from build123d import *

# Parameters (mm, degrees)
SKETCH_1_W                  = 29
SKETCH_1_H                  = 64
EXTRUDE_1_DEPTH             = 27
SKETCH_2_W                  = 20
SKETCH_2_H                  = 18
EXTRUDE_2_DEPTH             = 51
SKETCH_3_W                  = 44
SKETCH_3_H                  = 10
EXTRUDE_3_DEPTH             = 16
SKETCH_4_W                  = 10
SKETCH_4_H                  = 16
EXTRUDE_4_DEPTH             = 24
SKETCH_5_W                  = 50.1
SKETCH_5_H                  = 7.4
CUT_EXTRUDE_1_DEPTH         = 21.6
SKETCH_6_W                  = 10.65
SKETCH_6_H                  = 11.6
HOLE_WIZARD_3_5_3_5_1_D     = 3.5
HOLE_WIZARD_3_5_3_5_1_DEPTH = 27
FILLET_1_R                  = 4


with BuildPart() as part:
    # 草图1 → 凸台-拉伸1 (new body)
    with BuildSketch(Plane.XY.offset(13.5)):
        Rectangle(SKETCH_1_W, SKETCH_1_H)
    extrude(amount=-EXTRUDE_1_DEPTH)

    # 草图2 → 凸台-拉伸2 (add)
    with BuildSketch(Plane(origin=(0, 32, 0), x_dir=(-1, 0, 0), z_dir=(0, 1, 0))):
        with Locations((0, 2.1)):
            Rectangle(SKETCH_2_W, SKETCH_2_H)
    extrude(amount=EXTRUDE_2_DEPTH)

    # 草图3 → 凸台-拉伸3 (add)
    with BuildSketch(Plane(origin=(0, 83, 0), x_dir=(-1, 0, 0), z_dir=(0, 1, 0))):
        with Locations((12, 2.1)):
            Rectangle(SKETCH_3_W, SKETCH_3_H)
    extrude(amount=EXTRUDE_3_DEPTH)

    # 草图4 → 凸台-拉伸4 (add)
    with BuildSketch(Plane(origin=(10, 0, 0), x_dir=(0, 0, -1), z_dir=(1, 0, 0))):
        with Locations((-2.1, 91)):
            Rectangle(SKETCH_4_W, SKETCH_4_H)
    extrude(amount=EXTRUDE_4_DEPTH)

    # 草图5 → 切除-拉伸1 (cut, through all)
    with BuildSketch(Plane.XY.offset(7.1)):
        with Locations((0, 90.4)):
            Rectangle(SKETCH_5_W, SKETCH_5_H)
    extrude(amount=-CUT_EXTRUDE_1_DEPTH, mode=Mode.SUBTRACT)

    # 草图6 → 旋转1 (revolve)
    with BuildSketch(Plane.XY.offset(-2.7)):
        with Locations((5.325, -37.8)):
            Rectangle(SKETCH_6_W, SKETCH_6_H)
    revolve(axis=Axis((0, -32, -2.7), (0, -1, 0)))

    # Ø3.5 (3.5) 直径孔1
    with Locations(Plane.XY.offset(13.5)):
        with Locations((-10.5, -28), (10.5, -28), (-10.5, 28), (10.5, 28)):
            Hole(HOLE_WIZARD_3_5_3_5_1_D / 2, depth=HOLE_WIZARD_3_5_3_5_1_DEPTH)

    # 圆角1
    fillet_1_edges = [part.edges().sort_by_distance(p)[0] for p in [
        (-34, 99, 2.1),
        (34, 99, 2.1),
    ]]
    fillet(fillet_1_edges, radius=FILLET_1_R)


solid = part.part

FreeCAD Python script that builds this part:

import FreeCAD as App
import Part
import Sketcher
from FreeCAD import Vector


def edges_at(feature, points):
    """Names of the edges that pass closest to the given points."""
    edges = feature.Shape.Edges
    near = lambda p: min(range(len(edges)), key=lambda i: edges[i].distToShape(Part.Vertex(*p))[0])
    return sorted({f"Edge{near(p) + 1}" for p in points})


def add_polygon(sketch, points):
    """Adds a closed chain of lines whose ends are joined by coincident constraints."""
    first, n = sketch.GeometryCount, len(points)
    for a, b in zip(points, points[1:] + points[:1]):
        sketch.addGeometry(Part.LineSegment(App.Vector(*a, 0), App.Vector(*b, 0)), False)
    for i in range(n):
        sketch.addConstraint(Sketcher.Constraint("Coincident", first + i, 2, first + (i + 1) % n, 1))

doc = App.newDocument("Part")
body = doc.addObject("PartDesign::Body", "Body")

sketch1 = body.newObject("Sketcher::SketchObject", "Sketch")
sketch1.AttachmentSupport = (doc.getObject("XY_Plane"), [""])
sketch1.MapMode = "FlatFace"
sketch1.AttachmentOffset = App.Placement(Vector(0, 0, 13.5), App.Rotation())
add_polygon(sketch1, [(-14, 32), (-14, -32), (14, -32), (14, 32)])
sketch1.addConstraint([
    Sketcher.Constraint("Vertical", 0),
    Sketcher.Constraint("Horizontal", 1),
    Sketcher.Constraint("Vertical", 2),
    Sketcher.Constraint("Horizontal", 3),
    Sketcher.Constraint("Symmetric", 0, 2, 2, 2, -1, 1),
    Sketcher.Constraint("DistanceX", 1, 1, 1, 2, 29.0),
    Sketcher.Constraint("DistanceY", 0, 2, 0, 1, 64.0),
])
pad1 = body.newObject("PartDesign::Pad", "Pad")
pad1.Profile = sketch1
pad1.Length = 27
pad1.Reversed = True

sketch2 = body.newObject("Sketcher::SketchObject", "Sketch001")
sketch2.AttachmentSupport = (doc.getObject("XZ_Plane"), [""])
sketch2.MapMode = "FlatFace"
sketch2.AttachmentOffset = App.Placement(Vector(0, 0, -32), App.Rotation())
add_polygon(sketch2, [(10, 11), (10, -7), (-10, -7), (-10, 11)])
sketch2.addConstraint([
    Sketcher.Constraint("Vertical", 0),
    Sketcher.Constraint("Horizontal", 1),
    Sketcher.Constraint("Vertical", 2),
    Sketcher.Constraint("Horizontal", 3),
    Sketcher.Constraint("DistanceX", 1, 2, 1, 1, 20.0),
    Sketcher.Constraint("DistanceY", 0, 2, 0, 1, 18.0),
    Sketcher.Constraint("DistanceX", -1, 1, 0, 2, 10.0),
    Sketcher.Constraint("DistanceY", 0, 2, -1, 1, 6.9),
])
pad2 = body.newObject("PartDesign::Pad", "Pad001")
pad2.Profile = sketch2
pad2.Length = 51
pad2.Reversed = True

sketch3 = body.newObject("Sketcher::SketchObject", "Sketch002")
sketch3.AttachmentSupport = (doc.getObject("XZ_Plane"), [""])
sketch3.MapMode = "FlatFace"
sketch3.AttachmentOffset = App.Placement(Vector(0, 0, -83), App.Rotation())
add_polygon(sketch3, [(10, 7), (10, -3), (-34, -3), (-34, 7)])
sketch3.addConstraint([
    Sketcher.Constraint("Vertical", 0),
    Sketcher.Constraint("Horizontal", 1),
    Sketcher.Constraint("Vertical", 2),
    Sketcher.Constraint("Horizontal", 3),
    Sketcher.Constraint("DistanceX", 1, 2, 1, 1, 44.0),
    Sketcher.Constraint("DistanceY", 0, 2, 0, 1, 10.0),
    Sketcher.Constraint("DistanceX", -1, 1, 0, 2, 10.0),
    Sketcher.Constraint("DistanceY", 0, 2, -1, 1, 2.9),
])
pad3 = body.newObject("PartDesign::Pad", "Pad002")
pad3.Profile = sketch3
pad3.Length = 16
pad3.Reversed = True

sketch4 = body.newObject("Sketcher::SketchObject", "Sketch003")
sketch4.AttachmentSupport = (doc.getObject("YZ_Plane"), [""])
sketch4.MapMode = "FlatFace"
sketch4.AttachmentOffset = App.Placement(Vector(0, 0, 10), App.Rotation())
add_polygon(sketch4, [(99, 7), (83, 7), (83, -3), (99, -3)])
sketch4.addConstraint([
    Sketcher.Constraint("Horizontal", 0),
    Sketcher.Constraint("Vertical", 1),
    Sketcher.Constraint("Horizontal", 2),
    Sketcher.Constraint("Vertical", 3),
    Sketcher.Constraint("DistanceX", 0, 2, 0, 1, 16.0),
    Sketcher.Constraint("DistanceY", 1, 2, 1, 1, 10.0),
    Sketcher.Constraint("DistanceX", -1, 1, 0, 2, 83.0),
    Sketcher.Constraint("DistanceY", -1, 1, 0, 2, 7.1),
])
pad4 = body.newObject("PartDesign::Pad", "Pad003")
pad4.Profile = sketch4
pad4.Length = 24

sketch5 = body.newObject("Sketcher::SketchObject", "Sketch004")
sketch5.AttachmentSupport = (doc.getObject("XY_Plane"), [""])
sketch5.MapMode = "FlatFace"
sketch5.AttachmentOffset = App.Placement(Vector(0, 0, 7.1), App.Rotation())
add_polygon(sketch5, [(-25, 94), (-25, 87), (25, 87), (25, 94)])
sketch5.addConstraint([
    Sketcher.Constraint("Vertical", 0),
    Sketcher.Constraint("Horizontal", 1),
    Sketcher.Constraint("Vertical", 2),
    Sketcher.Constraint("Horizontal", 3),
    Sketcher.Constraint("DistanceX", 1, 1, 1, 2, 50.1),
    Sketcher.Constraint("DistanceY", 0, 2, 0, 1, 7.4),
    Sketcher.Constraint("DistanceY", -1, 1, 0, 2, 86.7),
    Sketcher.Constraint("DistanceX", 0, 2, -1, 1, 25.05),
])
pocket1 = body.newObject("PartDesign::Pocket", "Pocket")
pocket1.Profile = sketch5
pocket1.Type = "ThroughAll"

sketch6 = body.newObject("Sketcher::SketchObject", "Sketch005")
sketch6.AttachmentSupport = (doc.getObject("XY_Plane"), [""])
sketch6.MapMode = "FlatFace"
sketch6.AttachmentOffset = App.Placement(Vector(0, 0, -2.7), App.Rotation())
add_polygon(sketch6, [(0, -32), (0, -44), (11, -44), (11, -32)])
sketch6.addConstraint([
    Sketcher.Constraint("Vertical", 0),
    Sketcher.Constraint("Horizontal", 1),
    Sketcher.Constraint("Vertical", 2),
    Sketcher.Constraint("Horizontal", 3),
    Sketcher.Constraint("PointOnObject", 0, 2, -2),
    Sketcher.Constraint("DistanceY", 0, 2, 0, 1, 11.6),
    Sketcher.Constraint("DistanceY", 2, 2, -1, 1, 32.0),
    Sketcher.Constraint("DistanceX", 1, 1, 1, 2, 10.65),
])
revolution = body.newObject("PartDesign::Revolution", "Revolution")
revolution.Profile = sketch6
revolution.ReferenceAxis = (sketch6, ["V_Axis"])
revolution.Angle = 360

sketch7 = body.newObject("Sketcher::SketchObject", "Sketch006")
sketch7.AttachmentSupport = (doc.getObject("XY_Plane"), [""])
sketch7.MapMode = "FlatFace"
sketch7.AttachmentOffset = App.Placement(Vector(0, 0, 13.5), App.Rotation())
sketch7.addGeometry([
    Part.Circle(Vector(-10.5, -28, 0), Vector(0, 0, 1), 1.8),
    Part.Circle(Vector(10.5, -28, 0), Vector(0, 0, 1), 1.8),
    Part.Circle(Vector(-10.5, 28, 0), Vector(0, 0, 1), 1.8),
    Part.Circle(Vector(10.5, 28, 0), Vector(0, 0, 1), 1.8),
], False)
sketch7.addConstraint([
    Sketcher.Constraint("Equal", 0, 1),
    Sketcher.Constraint("Equal", 1, 2),
    Sketcher.Constraint("Equal", 2, 3),
    Sketcher.Constraint("Symmetric", 1, 3, 2, 3, -1, 1),
    Sketcher.Constraint("Symmetric", 0, 3, 3, 3, -1, 1),
    Sketcher.Constraint("Symmetric", 0, 3, 1, 3, -2),
    Sketcher.Constraint("Diameter", 0, 3.5),
    Sketcher.Constraint("DistanceY", 0, 3, -1, 1, 28.0),
    Sketcher.Constraint("DistanceX", 0, 3, 1, 3, 21.0),
])
doc.recompute()
hole = body.newObject("PartDesign::Hole", "Hole")
hole.Profile = sketch7
hole.ThreadType = "None"
hole.Diameter = 3.5
hole.DepthType = "Dimension"
hole.Depth = 27
hole.DrillPoint = "Flat"
doc.recompute()

fillet = body.newObject("PartDesign::Fillet", "Fillet")
fillet.Base = (hole, edges_at(hole, [(-34, 99, 2.1), (34, 99, 2.1)]))
fillet.Radius = 4

doc.recompute()
